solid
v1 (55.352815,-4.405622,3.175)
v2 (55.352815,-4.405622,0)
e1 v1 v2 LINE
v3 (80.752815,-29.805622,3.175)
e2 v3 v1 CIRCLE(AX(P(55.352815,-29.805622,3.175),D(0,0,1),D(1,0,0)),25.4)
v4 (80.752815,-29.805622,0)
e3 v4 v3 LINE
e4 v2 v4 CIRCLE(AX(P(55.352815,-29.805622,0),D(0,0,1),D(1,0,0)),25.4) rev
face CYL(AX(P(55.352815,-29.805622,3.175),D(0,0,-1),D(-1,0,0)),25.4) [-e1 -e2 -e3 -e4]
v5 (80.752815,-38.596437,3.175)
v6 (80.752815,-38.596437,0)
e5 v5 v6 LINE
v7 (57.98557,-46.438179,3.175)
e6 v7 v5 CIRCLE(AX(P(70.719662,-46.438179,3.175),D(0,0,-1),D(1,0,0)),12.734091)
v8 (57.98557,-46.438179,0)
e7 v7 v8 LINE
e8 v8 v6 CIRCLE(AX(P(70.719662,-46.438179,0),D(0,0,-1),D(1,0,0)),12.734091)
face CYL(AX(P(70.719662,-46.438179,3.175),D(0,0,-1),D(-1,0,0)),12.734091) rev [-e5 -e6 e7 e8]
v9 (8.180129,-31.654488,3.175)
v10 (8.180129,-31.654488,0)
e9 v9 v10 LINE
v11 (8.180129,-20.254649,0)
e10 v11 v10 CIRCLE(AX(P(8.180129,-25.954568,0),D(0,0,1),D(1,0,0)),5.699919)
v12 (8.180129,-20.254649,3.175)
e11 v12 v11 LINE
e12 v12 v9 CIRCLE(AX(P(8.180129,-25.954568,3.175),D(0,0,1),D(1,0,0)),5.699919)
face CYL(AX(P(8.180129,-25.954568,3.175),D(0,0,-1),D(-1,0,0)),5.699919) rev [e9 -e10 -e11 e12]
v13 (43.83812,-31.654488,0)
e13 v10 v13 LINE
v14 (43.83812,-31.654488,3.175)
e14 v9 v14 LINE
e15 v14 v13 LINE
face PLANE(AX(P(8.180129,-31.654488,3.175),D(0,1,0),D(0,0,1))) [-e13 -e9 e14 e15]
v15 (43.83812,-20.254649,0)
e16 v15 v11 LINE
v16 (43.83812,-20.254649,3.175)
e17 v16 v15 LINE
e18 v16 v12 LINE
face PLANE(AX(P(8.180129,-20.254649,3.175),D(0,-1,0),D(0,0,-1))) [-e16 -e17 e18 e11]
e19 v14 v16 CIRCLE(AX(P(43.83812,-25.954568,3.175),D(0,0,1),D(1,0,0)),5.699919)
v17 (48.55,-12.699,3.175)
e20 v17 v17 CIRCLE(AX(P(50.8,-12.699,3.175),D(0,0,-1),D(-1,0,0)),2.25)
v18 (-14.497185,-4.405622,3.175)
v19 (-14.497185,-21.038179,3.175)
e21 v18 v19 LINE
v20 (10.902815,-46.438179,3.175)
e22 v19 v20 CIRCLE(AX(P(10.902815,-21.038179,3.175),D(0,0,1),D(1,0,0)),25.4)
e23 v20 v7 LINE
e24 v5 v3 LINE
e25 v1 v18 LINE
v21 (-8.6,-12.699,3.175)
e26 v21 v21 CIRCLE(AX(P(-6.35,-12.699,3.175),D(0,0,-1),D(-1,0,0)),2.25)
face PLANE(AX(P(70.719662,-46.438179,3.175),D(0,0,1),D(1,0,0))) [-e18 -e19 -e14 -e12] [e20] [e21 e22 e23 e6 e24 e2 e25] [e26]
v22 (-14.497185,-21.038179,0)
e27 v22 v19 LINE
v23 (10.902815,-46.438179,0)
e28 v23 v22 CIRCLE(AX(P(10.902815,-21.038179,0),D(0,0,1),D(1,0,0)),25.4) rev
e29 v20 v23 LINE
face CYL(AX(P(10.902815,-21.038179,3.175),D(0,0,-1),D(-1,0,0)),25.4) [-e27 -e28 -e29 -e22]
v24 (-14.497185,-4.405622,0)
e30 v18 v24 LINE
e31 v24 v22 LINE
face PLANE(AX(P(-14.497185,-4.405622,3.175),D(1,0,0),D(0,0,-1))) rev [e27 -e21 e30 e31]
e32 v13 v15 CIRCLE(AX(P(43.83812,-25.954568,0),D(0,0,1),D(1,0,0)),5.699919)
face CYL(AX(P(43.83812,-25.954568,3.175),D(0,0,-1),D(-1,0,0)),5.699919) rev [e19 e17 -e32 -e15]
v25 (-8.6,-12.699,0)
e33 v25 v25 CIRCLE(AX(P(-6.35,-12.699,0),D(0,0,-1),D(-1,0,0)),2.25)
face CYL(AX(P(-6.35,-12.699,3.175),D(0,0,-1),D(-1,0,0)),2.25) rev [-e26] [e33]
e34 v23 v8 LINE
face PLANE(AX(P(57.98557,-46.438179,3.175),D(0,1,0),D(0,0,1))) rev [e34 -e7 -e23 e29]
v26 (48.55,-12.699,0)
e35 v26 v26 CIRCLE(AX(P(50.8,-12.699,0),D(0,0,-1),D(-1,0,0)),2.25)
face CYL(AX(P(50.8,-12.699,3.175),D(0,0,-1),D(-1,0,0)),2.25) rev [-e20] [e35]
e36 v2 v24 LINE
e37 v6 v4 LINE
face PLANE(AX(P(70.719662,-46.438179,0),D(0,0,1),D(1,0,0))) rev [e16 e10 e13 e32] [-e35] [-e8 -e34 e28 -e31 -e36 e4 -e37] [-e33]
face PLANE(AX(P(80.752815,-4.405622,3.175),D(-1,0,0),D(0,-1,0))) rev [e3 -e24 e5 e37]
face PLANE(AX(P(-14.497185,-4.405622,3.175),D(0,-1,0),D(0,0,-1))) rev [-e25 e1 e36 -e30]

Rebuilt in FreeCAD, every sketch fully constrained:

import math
import FreeCAD as App
import Part
import Sketcher
from FreeCAD import Vector
Q = App.Units.Quantity


def edges_at(feature, points):
    """Names of the edges that pass closest to the given points."""
    edges = feature.Shape.Edges
    near = lambda p: min(range(len(edges)), key=lambda i: edges[i].distToShape(Part.Vertex(*p))[0])
    return sorted({f"Edge{near(p) + 1}" for p in points})

doc = App.newDocument("Part")
body = doc.addObject("PartDesign::Body", "Body")

sketch1 = doc.addObject("Sketcher::SketchObject", "Sketch")
body.addObject(sketch1)
sketch1.AttachmentSupport = (doc.XY_Plane, [""])
sketch1.MapMode = "FlatFace"
sketch1.addGeometry([
    Part.LineSegment(Vector(81, -4, 0), Vector(-14, -4, 0)),
    Part.LineSegment(Vector(-14, -4, 0), Vector(-14, -46, 0)),
    Part.LineSegment(Vector(-14, -46, 0), Vector(58, -46, 0)),
    Part.ArcOfCircle(Part.Circle(Vector(71, -46, 0), Vector(0, 0, 1), 13), math.radians(38), math.radians(180)),
    Part.LineSegment(Vector(81, -39, 0), Vector(81, -4, 0)),
    Part.LineSegment(Vector(8, -20, 0), Vector(44, -20, 0)),
    Part.ArcOfCircle(Part.Circle(Vector(44, -26, 0), Vector(0, 0, 1), 6), math.radians(-90), math.radians(90)),
    Part.LineSegment(Vector(44, -32, 0), Vector(8, -32, 0)),
    Part.ArcOfCircle(Part.Circle(Vector(8, -26, 0), Vector(0, 0, 1), 6), math.radians(90), math.radians(270)),
], False)
sketch1.addConstraint([
    Sketcher.Constraint("Coincident", 0, 2, 1, 1),
    Sketcher.Constraint("Coincident", 1, 2, 2, 1),
    Sketcher.Constraint("Coincident", 2, 2, 3, 2),
    Sketcher.Constraint("Coincident", 3, 1, 4, 1),
    Sketcher.Constraint("Coincident", 4, 2, 0, 1),
    Sketcher.Constraint("Tangent", 5, 2, 6, 2),
    Sketcher.Constraint("Tangent", 6, 1, 7, 1),
    Sketcher.Constraint("Tangent", 7, 2, 8, 2),
    Sketcher.Constraint("Tangent", 8, 1, 5, 1),
    Sketcher.Constraint("Horizontal", 0),
    Sketcher.Constraint("Vertical", 1),
    Sketcher.Constraint("Horizontal", 2),
    Sketcher.Constraint("Vertical", 4),
    Sketcher.Constraint("Horizontal", 5),
    Sketcher.Constraint("Horizontal", 7),
    Sketcher.Constraint("Horizontal", 3, 3, 1, 2),
    Sketcher.Constraint("DistanceX", 0, 2, 0, 1, Q("3.75 in")),
    Sketcher.Constraint("Radius", 3, Q("12.734091 mm")),
    Sketcher.Constraint("Radius", 6, Q("5.699919 mm")),
    Sketcher.Constraint("DistanceX", 5, 1, 5, 2, Q("35.657991 mm")),
    Sketcher.Constraint("DistanceX", 2, 1, 2, 2, Q("72.482755 mm")),
    Sketcher.Constraint("DistanceY", 1, 2, 1, 1, Q("42.032557 mm")),
    Sketcher.Constraint("DistanceX", -1, 1, 3, 3, Q("70.719662 mm")),
    Sketcher.Constraint("DistanceY", 3, 3, -1, 1, Q("46.438179 mm")),
    Sketcher.Constraint("DistanceX", -1, 1, 6, 3, Q("43.83812 mm")),
    Sketcher.Constraint("DistanceY", 6, 3, -1, 1, Q("25.954568 mm")),
])
pad1 = doc.addObject("PartDesign::Pad", "Pad")
body.addObject(pad1)
pad1.Profile = sketch1
pad1.Length = Q("0.125 in")
doc.recompute()

fillet = doc.addObject("PartDesign::Fillet", "Fillet")
body.addObject(fillet)
fillet.Base = (pad1, edges_at(pad1, [(80.753, -4.406, 1.587), (-14.497, -46.438, 1.587)]))
fillet.Radius = Q("1 in")

sketch2 = doc.addObject("Sketcher::SketchObject", "Sketch001")
body.addObject(sketch2)
sketch2.AttachmentSupport = (doc.XY_Plane, [""])
sketch2.MapMode = "FlatFace"
sketch2.addGeometry([
    Part.Circle(Vector(50.8, -12.7, 0), Vector(0, 0, 1), 2.2),
    Part.Circle(Vector(-6.3, -12.7, 0), Vector(0, 0, 1), 2.2),
], False)
sketch2.addConstraint([
    Sketcher.Constraint("Equal", 0, 1),
    Sketcher.Constraint("Horizontal", 0, 3, 1, 3),
    Sketcher.Constraint("DistanceX", -1, 1, 0, 3, Q("2 in")),
    Sketcher.Constraint("Diameter", 0, Q("4.5 mm")),
    Sketcher.Constraint("DistanceX", 1, 3, -1, 1, Q("0.25 in")),
    Sketcher.Constraint("DistanceY", 0, 3, -1, 1, Q("12.699 mm")),
])
pocket1 = doc.addObject("PartDesign::Pocket", "Pocket")
body.addObject(pocket1)
pocket1.Profile = sketch2
pocket1.Type = "ThroughAll"
pocket1.Reversed = True

doc.recompute()
